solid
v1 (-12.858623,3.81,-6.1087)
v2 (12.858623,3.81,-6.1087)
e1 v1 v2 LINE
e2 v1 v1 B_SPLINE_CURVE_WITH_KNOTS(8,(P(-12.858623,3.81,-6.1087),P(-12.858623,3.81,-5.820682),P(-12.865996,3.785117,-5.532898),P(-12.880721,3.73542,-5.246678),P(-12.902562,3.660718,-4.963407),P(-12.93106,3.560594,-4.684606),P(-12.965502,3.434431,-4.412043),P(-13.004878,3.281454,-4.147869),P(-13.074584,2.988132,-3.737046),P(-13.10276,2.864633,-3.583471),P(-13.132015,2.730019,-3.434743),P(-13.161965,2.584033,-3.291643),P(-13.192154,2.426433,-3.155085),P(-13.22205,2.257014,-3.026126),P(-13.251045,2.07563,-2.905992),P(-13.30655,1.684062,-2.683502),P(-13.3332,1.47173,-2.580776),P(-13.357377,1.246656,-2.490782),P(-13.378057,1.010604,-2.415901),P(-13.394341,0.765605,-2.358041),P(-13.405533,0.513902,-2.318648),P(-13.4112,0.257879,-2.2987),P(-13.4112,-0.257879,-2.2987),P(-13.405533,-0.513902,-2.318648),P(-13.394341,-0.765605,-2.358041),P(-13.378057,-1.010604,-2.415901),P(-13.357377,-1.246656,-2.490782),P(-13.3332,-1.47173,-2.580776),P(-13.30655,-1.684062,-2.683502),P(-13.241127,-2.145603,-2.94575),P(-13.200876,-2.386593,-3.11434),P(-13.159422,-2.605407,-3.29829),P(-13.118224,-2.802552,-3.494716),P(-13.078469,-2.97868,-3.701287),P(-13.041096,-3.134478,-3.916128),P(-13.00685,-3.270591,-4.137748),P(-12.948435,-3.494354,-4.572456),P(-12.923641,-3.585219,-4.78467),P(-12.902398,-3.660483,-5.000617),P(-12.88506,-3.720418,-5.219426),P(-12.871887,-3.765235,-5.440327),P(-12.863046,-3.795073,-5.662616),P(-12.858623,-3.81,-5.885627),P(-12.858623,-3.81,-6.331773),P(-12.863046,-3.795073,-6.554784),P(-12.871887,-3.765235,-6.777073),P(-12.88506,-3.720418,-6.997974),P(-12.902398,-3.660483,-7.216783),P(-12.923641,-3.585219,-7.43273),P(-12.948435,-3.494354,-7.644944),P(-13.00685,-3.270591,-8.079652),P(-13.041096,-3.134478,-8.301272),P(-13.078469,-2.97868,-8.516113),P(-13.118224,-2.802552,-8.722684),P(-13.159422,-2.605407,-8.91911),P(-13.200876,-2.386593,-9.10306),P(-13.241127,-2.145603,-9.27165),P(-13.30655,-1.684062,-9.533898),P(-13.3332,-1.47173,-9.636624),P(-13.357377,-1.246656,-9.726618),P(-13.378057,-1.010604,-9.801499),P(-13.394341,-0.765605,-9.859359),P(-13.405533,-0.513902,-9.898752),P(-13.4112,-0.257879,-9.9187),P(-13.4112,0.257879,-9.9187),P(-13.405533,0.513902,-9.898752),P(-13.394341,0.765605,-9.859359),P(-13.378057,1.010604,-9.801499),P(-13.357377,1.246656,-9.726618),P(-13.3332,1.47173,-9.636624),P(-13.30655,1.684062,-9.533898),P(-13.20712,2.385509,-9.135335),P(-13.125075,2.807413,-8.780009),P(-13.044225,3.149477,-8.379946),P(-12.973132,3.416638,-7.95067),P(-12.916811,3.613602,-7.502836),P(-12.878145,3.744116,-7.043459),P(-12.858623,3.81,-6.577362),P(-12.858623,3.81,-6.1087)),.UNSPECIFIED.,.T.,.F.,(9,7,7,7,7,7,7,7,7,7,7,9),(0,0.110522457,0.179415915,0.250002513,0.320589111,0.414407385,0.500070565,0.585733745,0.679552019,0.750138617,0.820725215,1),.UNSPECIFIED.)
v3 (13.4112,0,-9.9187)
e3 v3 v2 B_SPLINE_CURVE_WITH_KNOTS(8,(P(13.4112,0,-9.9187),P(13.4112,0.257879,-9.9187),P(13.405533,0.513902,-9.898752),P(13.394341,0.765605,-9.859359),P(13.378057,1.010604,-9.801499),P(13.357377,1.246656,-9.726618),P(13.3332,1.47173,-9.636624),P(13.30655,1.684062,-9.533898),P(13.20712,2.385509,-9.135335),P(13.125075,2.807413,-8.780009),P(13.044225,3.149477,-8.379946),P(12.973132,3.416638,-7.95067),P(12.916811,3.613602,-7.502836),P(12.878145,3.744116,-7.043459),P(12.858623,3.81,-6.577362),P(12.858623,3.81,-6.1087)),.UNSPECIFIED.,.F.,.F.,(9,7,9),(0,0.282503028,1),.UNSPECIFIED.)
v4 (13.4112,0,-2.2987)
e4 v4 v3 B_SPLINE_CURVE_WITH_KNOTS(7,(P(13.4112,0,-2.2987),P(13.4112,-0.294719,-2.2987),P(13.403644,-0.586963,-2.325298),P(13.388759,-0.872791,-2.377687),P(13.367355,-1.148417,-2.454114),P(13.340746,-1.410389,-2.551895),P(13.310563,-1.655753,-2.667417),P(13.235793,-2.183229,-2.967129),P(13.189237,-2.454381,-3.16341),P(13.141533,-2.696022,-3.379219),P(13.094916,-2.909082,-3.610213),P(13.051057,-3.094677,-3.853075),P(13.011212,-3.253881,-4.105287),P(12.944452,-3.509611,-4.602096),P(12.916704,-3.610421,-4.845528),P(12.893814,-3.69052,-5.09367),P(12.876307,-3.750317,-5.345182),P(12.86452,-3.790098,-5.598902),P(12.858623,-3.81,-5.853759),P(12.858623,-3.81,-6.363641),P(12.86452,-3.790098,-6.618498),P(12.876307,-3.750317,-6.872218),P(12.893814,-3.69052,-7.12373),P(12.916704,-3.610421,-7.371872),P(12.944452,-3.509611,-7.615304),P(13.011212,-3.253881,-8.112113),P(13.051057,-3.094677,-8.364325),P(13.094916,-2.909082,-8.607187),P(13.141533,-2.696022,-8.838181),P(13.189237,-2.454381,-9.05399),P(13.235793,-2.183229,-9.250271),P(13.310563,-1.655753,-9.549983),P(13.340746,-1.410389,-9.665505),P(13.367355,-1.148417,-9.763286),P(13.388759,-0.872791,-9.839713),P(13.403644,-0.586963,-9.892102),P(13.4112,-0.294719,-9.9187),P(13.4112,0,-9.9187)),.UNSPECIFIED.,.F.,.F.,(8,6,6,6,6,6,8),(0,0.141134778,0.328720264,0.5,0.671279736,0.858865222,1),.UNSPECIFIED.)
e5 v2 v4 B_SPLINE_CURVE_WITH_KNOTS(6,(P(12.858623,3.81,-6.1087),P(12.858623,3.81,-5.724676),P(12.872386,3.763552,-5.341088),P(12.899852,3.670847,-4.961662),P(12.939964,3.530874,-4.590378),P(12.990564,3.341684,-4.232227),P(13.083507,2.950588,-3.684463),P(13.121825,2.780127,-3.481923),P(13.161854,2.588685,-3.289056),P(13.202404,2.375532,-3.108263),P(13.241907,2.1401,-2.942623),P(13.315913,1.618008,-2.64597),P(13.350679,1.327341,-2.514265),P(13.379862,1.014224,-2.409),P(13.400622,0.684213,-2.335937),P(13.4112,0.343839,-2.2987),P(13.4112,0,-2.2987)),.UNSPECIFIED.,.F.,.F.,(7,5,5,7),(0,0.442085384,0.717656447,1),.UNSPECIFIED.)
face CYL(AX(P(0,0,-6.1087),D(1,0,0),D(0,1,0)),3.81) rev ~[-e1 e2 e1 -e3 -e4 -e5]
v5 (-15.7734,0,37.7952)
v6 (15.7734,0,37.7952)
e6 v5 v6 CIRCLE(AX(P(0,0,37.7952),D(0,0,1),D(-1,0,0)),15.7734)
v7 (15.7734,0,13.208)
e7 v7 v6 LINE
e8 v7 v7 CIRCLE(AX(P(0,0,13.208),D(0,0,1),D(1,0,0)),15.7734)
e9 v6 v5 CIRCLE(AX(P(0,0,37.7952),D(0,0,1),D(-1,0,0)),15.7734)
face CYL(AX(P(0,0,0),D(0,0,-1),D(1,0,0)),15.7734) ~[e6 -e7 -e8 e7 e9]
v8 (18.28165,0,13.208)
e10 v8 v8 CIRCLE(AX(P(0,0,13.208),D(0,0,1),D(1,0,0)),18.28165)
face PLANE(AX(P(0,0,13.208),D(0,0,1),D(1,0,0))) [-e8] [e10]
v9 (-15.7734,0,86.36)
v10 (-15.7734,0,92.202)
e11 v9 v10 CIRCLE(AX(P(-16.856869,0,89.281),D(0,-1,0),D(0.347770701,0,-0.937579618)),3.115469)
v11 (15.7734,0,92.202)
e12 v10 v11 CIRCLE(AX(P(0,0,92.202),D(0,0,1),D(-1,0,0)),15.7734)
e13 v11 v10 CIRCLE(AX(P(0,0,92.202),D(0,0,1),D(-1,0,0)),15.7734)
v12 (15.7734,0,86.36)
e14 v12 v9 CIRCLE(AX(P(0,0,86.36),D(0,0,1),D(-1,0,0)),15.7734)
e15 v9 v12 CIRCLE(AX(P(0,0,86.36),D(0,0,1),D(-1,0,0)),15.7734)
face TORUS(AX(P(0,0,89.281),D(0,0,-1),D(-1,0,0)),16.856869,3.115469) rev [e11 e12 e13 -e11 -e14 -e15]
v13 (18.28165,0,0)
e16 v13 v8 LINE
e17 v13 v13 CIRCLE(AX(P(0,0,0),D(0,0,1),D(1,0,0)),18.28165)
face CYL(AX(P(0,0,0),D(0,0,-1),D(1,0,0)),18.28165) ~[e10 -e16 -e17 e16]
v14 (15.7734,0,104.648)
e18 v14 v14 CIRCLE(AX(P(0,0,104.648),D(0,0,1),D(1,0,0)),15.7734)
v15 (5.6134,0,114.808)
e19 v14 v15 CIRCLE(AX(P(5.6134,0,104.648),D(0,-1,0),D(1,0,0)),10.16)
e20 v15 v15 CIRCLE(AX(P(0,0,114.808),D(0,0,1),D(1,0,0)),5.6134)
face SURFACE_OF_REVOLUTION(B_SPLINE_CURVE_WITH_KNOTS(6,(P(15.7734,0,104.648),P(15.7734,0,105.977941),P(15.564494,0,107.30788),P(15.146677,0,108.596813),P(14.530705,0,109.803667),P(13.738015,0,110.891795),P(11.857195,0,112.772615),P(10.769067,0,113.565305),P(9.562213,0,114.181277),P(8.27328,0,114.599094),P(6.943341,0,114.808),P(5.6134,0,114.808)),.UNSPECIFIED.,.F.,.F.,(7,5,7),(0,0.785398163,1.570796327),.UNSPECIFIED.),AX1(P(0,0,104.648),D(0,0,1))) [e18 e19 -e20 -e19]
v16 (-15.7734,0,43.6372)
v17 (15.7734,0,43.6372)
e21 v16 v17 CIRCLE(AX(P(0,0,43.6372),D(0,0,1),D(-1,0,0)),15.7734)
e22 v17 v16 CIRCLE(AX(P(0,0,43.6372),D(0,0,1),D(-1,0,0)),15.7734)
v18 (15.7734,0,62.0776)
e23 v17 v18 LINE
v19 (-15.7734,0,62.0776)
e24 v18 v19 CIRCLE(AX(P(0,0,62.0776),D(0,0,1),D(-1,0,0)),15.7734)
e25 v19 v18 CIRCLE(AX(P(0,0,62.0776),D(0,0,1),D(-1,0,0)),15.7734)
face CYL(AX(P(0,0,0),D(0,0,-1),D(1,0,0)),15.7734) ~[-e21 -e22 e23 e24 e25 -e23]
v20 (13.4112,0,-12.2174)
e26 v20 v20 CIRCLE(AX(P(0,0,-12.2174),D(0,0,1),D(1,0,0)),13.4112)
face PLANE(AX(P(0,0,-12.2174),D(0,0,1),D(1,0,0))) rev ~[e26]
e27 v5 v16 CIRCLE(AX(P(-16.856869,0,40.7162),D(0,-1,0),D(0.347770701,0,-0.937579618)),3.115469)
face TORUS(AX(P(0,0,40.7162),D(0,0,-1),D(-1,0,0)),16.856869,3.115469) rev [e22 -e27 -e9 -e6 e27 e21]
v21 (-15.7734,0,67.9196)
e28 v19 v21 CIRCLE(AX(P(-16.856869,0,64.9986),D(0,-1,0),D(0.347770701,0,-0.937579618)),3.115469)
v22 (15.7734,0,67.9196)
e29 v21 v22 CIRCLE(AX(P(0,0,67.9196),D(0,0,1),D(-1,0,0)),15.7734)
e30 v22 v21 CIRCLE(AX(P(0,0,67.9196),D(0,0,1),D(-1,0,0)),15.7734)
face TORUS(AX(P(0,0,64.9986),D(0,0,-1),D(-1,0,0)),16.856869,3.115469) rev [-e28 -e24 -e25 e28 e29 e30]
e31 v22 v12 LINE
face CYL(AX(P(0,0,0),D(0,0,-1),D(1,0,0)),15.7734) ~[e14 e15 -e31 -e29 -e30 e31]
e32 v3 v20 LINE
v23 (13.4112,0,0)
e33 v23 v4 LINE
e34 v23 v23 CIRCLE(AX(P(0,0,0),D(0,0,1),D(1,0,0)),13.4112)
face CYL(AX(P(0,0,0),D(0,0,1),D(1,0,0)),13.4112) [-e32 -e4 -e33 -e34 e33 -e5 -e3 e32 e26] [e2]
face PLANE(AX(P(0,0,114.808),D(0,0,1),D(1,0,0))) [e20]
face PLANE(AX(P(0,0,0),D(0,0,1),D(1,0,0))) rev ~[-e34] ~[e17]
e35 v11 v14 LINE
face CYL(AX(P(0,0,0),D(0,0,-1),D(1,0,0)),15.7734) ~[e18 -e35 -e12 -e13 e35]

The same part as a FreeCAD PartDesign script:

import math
import FreeCAD as App
import Part
import Sketcher
from FreeCAD import Vector
Q = App.Units.Quantity


def edges_at(feature, points):
    """Names of the edges that pass closest to the given points."""
    edges = feature.Shape.Edges
    near = lambda p: min(range(len(edges)), key=lambda i: edges[i].distToShape(Part.Vertex(*p))[0])
    return sorted({f"Edge{near(p) + 1}" for p in points})

doc = App.newDocument("Part")
params = doc.addObject("Spreadsheet::Sheet", "Params")
for row, (alias, value) in enumerate([
    ("sketch1_diameter", "1.056 in"),
    ("pad1_length", "0.481 in"),
    ("sketch2_diameter", "1.242 in"),
    ("pad2_length", "4.52 in"),
    ("sketch3_diameter", "1.242 in"),
    ("pad3_length", "0.52 in"),
    ("fillet_radius", "0.4 in"),
    ("sketch4_height", "0.23 in"),
    ("groove_angle", "360 deg"),
    ("sketch5_height", "0.23 in"),
    ("groove2_angle", "360 deg"),
    ("sketch6_diameter", "0.3 in"),
    ("pocket1_length", "2 in"),
], start=1):
    params.set(f"A{row}", alias)
    params.set(f"B{row}", "=" + value)
    params.setAlias(f"B{row}", alias)

body = doc.addObject("PartDesign::Body", "Body")

# Sketch on XY plane
sketch1 = doc.addObject("Sketcher::SketchObject", "Sketch")
body.addObject(sketch1)
sketch1.AttachmentSupport = (doc.XY_Plane, [""])
sketch1.MapMode = "FlatFace"
sketch1.addGeometry(Part.Circle(Vector(0, 0, 0), Vector(0, 0, 1), 13), False)
sketch1.addConstraint([
    Sketcher.Constraint("Coincident", 0, 3, -1, 1),
    Sketcher.Constraint("Diameter", 0, Q("1.056 in")),
])
sketch1.setExpression("Constraints[1]", "Params.sketch1_diameter")
pad1 = doc.addObject("PartDesign::Pad", "Pad")
body.addObject(pad1)
pad1.Profile = sketch1
pad1.setExpression("Length", "Params.pad1_length")
pad1.Reversed = True

# Sketch on XY plane
sketch2 = doc.addObject("Sketcher::SketchObject", "Sketch001")
body.addObject(sketch2)
sketch2.AttachmentSupport = (doc.XY_Plane, [""])
sketch2.MapMode = "FlatFace"
sketch2.addGeometry(Part.Circle(Vector(0, 0, 0), Vector(0, 0, 1), 16), False)
sketch2.addConstraint([
    Sketcher.Constraint("Coincident", 0, 3, -1, 1),
    Sketcher.Constraint("Diameter", 0, Q("1.242 in")),
])
sketch2.setExpression("Constraints[1]", "Params.sketch2_diameter")
pad2 = doc.addObject("PartDesign::Pad", "Pad001")
body.addObject(pad2)
pad2.Profile = sketch2
pad2.setExpression("Length", "Params.pad2_length")

# Sketch on XY plane
sketch3 = doc.addObject("Sketcher::SketchObject", "Sketch002")
body.addObject(sketch3)
sketch3.AttachmentSupport = (doc.XY_Plane, [""])
sketch3.MapMode = "FlatFace"
sketch3.addGeometry([
    Part.Circle(Vector(0, 0, 0), Vector(0, 0, 1), 18),
    Part.Circle(Vector(0, 0, 0), Vector(0, 0, 1), 16),
], False)
sketch3.addConstraint([
    Sketcher.Constraint("Coincident", 0, 3, -1, 1),
    Sketcher.Constraint("Coincident", 1, 3, -1, 1),
    Sketcher.Constraint("Diameter", 1, Q("1.242 in")),
    Sketcher.Constraint("Diameter", 0, Q("1.4395 in")),
])
sketch3.setExpression("Constraints[2]", "Params.sketch3_diameter")
pad3 = doc.addObject("PartDesign::Pad", "Pad002")
body.addObject(pad3)
pad3.Profile = sketch3
pad3.setExpression("Length", "Params.pad3_length")
doc.recompute()

fillet = doc.addObject("PartDesign::Fillet", "Fillet")
body.addObject(fillet)
fillet.Base = (pad3, edges_at(pad3, [(-15.773, 0, 114.808)]))
fillet.setExpression("Radius", "Params.fillet_radius")

# Sketch on XZ plane
sketch4 = doc.addObject("Sketcher::SketchObject", "Sketch003")
body.addObject(sketch4)
sketch4.AttachmentSupport = (doc.XZ_Plane, [""])
sketch4.MapMode = "FlatFace"
sketch4.addGeometry([
    Part.LineSegment(Vector(-15.8, 43.6, 0), Vector(-15.8, 37.8, 0)),
    Part.ArcOfCircle(Part.Circle(Vector(-16.9, 40.7, 0), Vector(0, 0, 1), 3.1), math.radians(-70), math.radians(70)),
], False)
sketch4.addConstraint([
    Sketcher.Constraint("Coincident", 0, 1, 1, 2),
    Sketcher.Constraint("Coincident", 1, 1, 0, 2),
    Sketcher.Constraint("Vertical", 0),
    Sketcher.Constraint("DistanceY", 0, 2, 0, 1, Q("0.23 in")),
    Sketcher.Constraint("DistanceY", -1, 1, 1, 3, Q("1.603 in")),
    Sketcher.Constraint("DistanceX", 0, 1, -1, 1, Q("0.621 in")),
    Sketcher.Constraint("Radius", 1, Q("3.115469 mm")),
])
sketch4.setExpression("Constraints[3]", "Params.sketch4_height")
groove = doc.addObject("PartDesign::Groove", "Groove")
body.addObject(groove)
groove.Profile = sketch4
groove.ReferenceAxis = (sketch4, ["V_Axis"])
groove.setExpression("Angle", "Params.groove_angle")

# Sketch on XZ plane
sketch5 = doc.addObject("Sketcher::SketchObject", "Sketch004")
body.addObject(sketch5)
sketch5.AttachmentSupport = (doc.XZ_Plane, [""])
sketch5.MapMode = "FlatFace"
sketch5.addGeometry([
    Part.LineSegment(Vector(-15.8, 92.2, 0), Vector(-15.8, 86.4, 0)),
    Part.ArcOfCircle(Part.Circle(Vector(-16.9, 89.3, 0), Vector(0, 0, 1), 3.1), math.radians(-70), math.radians(70)),
    Part.LineSegment(Vector(-15.8, 67.9, 0), Vector(-15.8, 62.1, 0)),
    Part.ArcOfCircle(Part.Circle(Vector(-16.9, 65, 0), Vector(0, 0, 1), 3.1), math.radians(-70), math.radians(70)),
], False)
sketch5.addConstraint([
    Sketcher.Constraint("Coincident", 0, 1, 1, 2),
    Sketcher.Constraint("Coincident", 1, 1, 0, 2),
    Sketcher.Constraint("Coincident", 2, 1, 3, 2),
    Sketcher.Constraint("Coincident", 3, 1, 2, 2),
    Sketcher.Constraint("Vertical", 0),
    Sketcher.Constraint("Vertical", 2),
    Sketcher.Constraint("Equal", 1, 3),
    Sketcher.Constraint("Vertical", 1, 3, 3, 3),
    Sketcher.Constraint("Vertical", 1, 1, 2, 1),
    Sketcher.Constraint("DistanceY", 0, 2, 0, 1, Q("0.23 in")),
    Sketcher.Constraint("DistanceY", -1, 1, 1, 1, Q("3.4 in")),
    Sketcher.Constraint("DistanceY", -1, 1, 3, 3, Q("2.559 in")),
    Sketcher.Constraint("DistanceX", 0, 1, -1, 1, Q("0.621 in")),
    Sketcher.Constraint("Radius", 1, Q("3.115469 mm")),
])
sketch5.setExpression("Constraints[9]", "Params.sketch5_height")
groove2 = doc.addObject("PartDesign::Groove", "Groove001")
body.addObject(groove2)
groove2.Profile = sketch5
groove2.ReferenceAxis = (sketch5, ["V_Axis"])
groove2.setExpression("Angle", "Params.groove2_angle")

# Sketch on YZ plane
sketch6 = doc.addObject("Sketcher::SketchObject", "Sketch005")
body.addObject(sketch6)
sketch6.AttachmentSupport = (doc.YZ_Plane, [""])
sketch6.MapMode = "FlatFace"
sketch6.addGeometry(Part.Circle(Vector(0, -6.1, 0), Vector(0, 0, 1), 3.8), False)
sketch6.addConstraint([
    Sketcher.Constraint("PointOnObject", 0, 3, -2),
    Sketcher.Constraint("Diameter", 0, Q("0.3 in")),
    Sketcher.Constraint("DistanceY", 0, 3, -1, 1, Q("0.2405 in")),
])
sketch6.setExpression("Constraints[1]", "Params.sketch6_diameter")
pocket1 = doc.addObject("PartDesign::Pocket", "Pocket")
body.addObject(pocket1)
pocket1.Profile = sketch6
pocket1.setExpression("Length", "Params.pocket1_length")
pocket1.Midplane = True

doc.recompute()
